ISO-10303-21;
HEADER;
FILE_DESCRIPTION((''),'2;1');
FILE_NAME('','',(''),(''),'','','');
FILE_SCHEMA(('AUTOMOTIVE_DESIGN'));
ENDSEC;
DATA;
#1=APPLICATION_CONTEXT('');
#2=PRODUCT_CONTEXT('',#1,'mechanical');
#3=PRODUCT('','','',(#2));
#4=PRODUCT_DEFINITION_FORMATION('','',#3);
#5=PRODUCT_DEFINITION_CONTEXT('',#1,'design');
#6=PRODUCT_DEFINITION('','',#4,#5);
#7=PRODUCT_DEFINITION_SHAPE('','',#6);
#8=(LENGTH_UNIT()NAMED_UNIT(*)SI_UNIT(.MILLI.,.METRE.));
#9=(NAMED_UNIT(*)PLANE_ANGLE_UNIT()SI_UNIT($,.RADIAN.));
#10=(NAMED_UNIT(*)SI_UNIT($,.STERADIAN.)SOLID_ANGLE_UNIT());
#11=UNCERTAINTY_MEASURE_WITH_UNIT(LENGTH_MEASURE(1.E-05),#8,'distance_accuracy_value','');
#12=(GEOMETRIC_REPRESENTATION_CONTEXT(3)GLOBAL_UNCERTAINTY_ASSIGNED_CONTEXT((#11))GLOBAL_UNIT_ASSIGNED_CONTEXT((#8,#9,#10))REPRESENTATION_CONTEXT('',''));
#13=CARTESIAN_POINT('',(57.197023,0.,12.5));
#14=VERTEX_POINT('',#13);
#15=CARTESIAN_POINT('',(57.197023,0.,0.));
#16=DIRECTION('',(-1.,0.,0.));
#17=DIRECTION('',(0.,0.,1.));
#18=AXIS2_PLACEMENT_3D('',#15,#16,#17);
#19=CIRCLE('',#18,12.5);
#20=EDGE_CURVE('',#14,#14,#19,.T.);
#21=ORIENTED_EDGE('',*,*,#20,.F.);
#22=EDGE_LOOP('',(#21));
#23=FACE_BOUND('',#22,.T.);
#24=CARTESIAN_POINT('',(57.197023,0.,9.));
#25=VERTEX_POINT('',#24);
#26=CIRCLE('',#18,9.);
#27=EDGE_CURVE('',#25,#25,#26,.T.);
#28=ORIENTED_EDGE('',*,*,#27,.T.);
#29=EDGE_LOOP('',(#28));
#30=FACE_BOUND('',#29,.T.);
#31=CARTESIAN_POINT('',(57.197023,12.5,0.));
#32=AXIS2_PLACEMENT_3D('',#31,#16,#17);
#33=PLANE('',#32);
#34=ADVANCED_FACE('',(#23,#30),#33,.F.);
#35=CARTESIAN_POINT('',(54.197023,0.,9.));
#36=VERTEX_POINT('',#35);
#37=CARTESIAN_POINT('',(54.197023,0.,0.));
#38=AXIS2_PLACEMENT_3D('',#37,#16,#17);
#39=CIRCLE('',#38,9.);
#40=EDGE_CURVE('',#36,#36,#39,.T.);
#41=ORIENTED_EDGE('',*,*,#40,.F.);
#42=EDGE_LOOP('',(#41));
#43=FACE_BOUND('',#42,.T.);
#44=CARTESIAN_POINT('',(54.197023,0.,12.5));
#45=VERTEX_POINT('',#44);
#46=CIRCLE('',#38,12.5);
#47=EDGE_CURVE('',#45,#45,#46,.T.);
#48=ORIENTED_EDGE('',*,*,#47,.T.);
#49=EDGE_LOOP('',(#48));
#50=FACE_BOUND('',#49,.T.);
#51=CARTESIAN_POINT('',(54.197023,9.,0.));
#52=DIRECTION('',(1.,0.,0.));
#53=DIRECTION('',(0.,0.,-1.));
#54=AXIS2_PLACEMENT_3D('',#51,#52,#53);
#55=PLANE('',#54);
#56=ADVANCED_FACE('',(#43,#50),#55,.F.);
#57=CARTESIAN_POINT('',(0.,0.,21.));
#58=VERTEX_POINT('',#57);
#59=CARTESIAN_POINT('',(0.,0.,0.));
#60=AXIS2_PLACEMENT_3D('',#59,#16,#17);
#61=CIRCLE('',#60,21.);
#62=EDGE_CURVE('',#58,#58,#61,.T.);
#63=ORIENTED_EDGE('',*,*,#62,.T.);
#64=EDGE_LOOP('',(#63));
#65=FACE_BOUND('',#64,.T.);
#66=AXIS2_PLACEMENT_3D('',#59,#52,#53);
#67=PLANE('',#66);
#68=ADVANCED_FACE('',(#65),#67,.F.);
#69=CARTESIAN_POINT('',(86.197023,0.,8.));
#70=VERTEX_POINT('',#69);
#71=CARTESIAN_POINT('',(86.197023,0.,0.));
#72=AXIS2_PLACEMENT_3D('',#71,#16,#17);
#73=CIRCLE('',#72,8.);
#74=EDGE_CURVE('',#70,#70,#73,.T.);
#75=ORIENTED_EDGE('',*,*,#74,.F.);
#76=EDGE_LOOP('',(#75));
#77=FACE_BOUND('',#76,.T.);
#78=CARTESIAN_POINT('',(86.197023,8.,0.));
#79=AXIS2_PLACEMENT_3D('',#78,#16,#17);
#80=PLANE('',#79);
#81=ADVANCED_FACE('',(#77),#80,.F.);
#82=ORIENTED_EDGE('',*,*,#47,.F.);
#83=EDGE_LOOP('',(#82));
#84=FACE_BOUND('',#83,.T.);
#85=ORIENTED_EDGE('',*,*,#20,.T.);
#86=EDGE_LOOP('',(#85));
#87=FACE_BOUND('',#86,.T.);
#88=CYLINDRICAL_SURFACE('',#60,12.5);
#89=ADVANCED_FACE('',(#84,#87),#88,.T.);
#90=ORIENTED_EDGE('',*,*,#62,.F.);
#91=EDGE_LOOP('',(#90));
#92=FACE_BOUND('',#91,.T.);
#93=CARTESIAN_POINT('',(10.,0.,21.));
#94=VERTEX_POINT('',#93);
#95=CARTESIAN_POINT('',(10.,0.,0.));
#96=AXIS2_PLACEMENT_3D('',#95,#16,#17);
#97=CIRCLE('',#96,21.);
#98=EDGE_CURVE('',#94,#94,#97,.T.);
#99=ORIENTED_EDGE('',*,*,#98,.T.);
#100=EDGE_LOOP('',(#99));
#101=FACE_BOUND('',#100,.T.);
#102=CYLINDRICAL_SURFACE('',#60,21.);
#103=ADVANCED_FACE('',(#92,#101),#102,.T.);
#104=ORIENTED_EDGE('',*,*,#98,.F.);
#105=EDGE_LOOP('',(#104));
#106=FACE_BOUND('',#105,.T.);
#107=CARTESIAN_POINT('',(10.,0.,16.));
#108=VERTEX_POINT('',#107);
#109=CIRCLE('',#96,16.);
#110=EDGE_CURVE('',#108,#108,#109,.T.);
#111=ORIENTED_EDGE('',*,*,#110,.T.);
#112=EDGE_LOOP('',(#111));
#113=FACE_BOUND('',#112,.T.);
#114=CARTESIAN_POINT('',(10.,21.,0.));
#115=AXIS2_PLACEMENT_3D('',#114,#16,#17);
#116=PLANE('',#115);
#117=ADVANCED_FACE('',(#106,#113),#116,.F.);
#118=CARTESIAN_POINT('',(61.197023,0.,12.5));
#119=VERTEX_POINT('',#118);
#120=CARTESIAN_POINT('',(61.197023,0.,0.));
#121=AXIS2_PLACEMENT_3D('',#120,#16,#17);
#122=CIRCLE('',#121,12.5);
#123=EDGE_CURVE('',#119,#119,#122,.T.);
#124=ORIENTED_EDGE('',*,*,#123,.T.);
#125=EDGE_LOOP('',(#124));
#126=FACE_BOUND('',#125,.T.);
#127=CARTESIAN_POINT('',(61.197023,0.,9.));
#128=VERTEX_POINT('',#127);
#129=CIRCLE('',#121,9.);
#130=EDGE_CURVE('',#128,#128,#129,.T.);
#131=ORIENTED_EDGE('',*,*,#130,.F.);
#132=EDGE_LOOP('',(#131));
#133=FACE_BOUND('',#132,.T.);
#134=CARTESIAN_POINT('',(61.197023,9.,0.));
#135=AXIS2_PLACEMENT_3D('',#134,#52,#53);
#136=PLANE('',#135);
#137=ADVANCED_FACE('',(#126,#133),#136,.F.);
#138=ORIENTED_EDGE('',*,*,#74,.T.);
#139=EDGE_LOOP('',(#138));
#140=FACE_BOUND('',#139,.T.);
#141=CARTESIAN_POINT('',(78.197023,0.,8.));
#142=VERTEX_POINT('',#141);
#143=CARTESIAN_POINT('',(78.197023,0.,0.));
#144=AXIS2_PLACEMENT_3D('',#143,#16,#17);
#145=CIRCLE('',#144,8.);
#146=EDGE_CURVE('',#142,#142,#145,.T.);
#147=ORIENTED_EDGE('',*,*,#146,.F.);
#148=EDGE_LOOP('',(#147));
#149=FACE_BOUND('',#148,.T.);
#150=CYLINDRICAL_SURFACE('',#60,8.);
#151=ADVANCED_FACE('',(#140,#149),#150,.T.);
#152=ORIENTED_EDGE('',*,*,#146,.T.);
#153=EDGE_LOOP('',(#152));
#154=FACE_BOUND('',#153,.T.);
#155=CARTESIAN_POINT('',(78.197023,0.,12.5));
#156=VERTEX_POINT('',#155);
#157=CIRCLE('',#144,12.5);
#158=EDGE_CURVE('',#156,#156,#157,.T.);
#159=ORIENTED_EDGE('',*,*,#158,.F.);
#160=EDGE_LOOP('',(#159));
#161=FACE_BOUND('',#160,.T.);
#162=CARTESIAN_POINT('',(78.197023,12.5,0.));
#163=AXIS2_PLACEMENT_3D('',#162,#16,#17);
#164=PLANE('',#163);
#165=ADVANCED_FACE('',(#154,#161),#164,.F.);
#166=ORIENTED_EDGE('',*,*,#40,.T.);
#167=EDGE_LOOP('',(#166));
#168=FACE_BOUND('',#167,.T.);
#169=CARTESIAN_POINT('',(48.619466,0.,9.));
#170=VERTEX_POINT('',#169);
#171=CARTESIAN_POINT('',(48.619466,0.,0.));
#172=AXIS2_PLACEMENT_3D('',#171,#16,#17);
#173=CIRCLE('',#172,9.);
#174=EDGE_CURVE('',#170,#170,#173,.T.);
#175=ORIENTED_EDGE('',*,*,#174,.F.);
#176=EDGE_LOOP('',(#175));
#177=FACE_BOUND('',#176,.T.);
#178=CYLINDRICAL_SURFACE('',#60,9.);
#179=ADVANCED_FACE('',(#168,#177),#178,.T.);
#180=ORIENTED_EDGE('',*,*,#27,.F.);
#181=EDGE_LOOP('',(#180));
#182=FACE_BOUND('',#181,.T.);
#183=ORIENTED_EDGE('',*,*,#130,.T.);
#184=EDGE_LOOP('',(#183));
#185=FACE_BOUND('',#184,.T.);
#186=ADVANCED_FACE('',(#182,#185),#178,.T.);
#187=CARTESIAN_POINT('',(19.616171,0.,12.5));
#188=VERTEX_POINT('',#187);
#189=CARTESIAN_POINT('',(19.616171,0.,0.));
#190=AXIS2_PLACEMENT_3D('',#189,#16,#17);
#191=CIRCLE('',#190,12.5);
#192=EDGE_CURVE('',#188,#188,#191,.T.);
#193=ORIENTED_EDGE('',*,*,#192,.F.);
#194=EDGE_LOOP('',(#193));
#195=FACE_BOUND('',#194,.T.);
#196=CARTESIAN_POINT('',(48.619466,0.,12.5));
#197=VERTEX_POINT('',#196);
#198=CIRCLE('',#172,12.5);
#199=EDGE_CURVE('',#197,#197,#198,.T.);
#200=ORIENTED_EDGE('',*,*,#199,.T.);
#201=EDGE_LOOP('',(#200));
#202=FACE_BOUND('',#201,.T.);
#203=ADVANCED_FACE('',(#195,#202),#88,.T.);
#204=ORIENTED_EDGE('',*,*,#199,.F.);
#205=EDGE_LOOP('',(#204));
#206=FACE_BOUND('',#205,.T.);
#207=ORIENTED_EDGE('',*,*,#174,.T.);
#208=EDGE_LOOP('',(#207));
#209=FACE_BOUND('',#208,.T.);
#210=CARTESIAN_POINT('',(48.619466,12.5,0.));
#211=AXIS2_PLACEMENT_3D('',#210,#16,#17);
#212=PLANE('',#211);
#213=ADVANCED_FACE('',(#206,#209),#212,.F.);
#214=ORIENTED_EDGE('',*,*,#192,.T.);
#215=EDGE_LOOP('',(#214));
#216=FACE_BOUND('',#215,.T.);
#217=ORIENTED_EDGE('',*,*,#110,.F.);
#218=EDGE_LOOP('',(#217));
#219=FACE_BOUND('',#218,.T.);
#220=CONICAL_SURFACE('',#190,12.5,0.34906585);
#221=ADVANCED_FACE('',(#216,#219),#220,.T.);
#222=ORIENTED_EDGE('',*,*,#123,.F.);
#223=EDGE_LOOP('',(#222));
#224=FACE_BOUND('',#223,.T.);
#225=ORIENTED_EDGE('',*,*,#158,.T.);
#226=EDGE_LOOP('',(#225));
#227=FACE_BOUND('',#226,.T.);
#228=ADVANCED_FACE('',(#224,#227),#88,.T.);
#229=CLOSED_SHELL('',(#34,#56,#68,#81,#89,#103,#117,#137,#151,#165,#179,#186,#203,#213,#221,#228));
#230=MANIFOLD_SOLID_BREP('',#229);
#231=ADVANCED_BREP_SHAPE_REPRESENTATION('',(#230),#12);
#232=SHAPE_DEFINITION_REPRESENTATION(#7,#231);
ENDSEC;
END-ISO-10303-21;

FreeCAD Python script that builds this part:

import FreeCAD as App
import Part
import Sketcher
from FreeCAD import Vector
Q = App.Units.Quantity

doc = App.newDocument("Part")
body = doc.addObject("PartDesign::Body", "Body")

sketch1 = body.newObject("Sketcher::SketchObject", "Sketch")
sketch1.AttachmentSupport = (doc.getObject("XY_Plane"), [""])
sketch1.MapMode = "FlatFace"
sketch1.addGeometry([
    Part.LineSegment(Vector(0, 21, 0), Vector(0, 0, 0)),
    Part.LineSegment(Vector(0, 0, 0), Vector(86.2, 0, 0)),
    Part.LineSegment(Vector(86.2, 0, 0), Vector(86.2, 8, 0)),
    Part.LineSegment(Vector(86.2, 8, 0), Vector(78.2, 8, 0)),
    Part.LineSegment(Vector(78.2, 8, 0), Vector(78.2, 12.5, 0)),
    Part.LineSegment(Vector(78.2, 12.5, 0), Vector(61.2, 12.5, 0)),
    Part.LineSegment(Vector(61.2, 12.5, 0), Vector(61.2, 9, 0)),
    Part.LineSegment(Vector(61.2, 9, 0), Vector(57.2, 9, 0)),
    Part.LineSegment(Vector(57.2, 9, 0), Vector(57.2, 12.5, 0)),
    Part.LineSegment(Vector(57.2, 12.5, 0), Vector(54.2, 12.5, 0)),
    Part.LineSegment(Vector(54.2, 12.5, 0), Vector(54.2, 9, 0)),
    Part.LineSegment(Vector(54.2, 9, 0), Vector(48.6, 9, 0)),
    Part.LineSegment(Vector(48.6, 9, 0), Vector(48.6, 12.5, 0)),
    Part.LineSegment(Vector(48.6, 12.5, 0), Vector(19.6, 12.5, 0)),
    Part.LineSegment(Vector(19.6, 12.5, 0), Vector(10, 16, 0)),
    Part.LineSegment(Vector(10, 16, 0), Vector(10, 21, 0)),
    Part.LineSegment(Vector(10, 21, 0), Vector(0, 21, 0)),
], False)
sketch1.addConstraint([
    Sketcher.Constraint("Coincident", 0, 2, 1, 1),
    Sketcher.Constraint("Coincident", 1, 2, 2, 1),
    Sketcher.Constraint("Coincident", 2, 2, 3, 1),
    Sketcher.Constraint("Coincident", 3, 2, 4, 1),
    Sketcher.Constraint("Coincident", 4, 2, 5, 1),
    Sketcher.Constraint("Coincident", 5, 2, 6, 1),
    Sketcher.Constraint("Coincident", 6, 2, 7, 1),
    Sketcher.Constraint("Coincident", 7, 2, 8, 1),
    Sketcher.Constraint("Coincident", 8, 2, 9, 1),
    Sketcher.Constraint("Coincident", 9, 2, 10, 1),
    Sketcher.Constraint("Coincident", 10, 2, 11, 1),
    Sketcher.Constraint("Coincident", 11, 2, 12, 1),
    Sketcher.Constraint("Coincident", 12, 2, 13, 1),
    Sketcher.Constraint("Coincident", 13, 2, 14, 1),
    Sketcher.Constraint("Coincident", 14, 2, 15, 1),
    Sketcher.Constraint("Coincident", 15, 2, 16, 1),
    Sketcher.Constraint("Coincident", 16, 2, 0, 1),
    Sketcher.Constraint("Vertical", 0),
    Sketcher.Constraint("Horizontal", 1),
    Sketcher.Constraint("Vertical", 2),
    Sketcher.Constraint("Horizontal", 3),
    Sketcher.Constraint("Vertical", 4),
    Sketcher.Constraint("Horizontal", 5),
    Sketcher.Constraint("Vertical", 6),
    Sketcher.Constraint("Horizontal", 7),
    Sketcher.Constraint("Vertical", 8),
    Sketcher.Constraint("Horizontal", 9),
    Sketcher.Constraint("Vertical", 10),
    Sketcher.Constraint("Horizontal", 11),
    Sketcher.Constraint("Vertical", 12),
    Sketcher.Constraint("Horizontal", 13),
    Sketcher.Constraint("Vertical", 15),
    Sketcher.Constraint("Horizontal", 16),
    Sketcher.Constraint("Coincident", 0, 2, -1, 1),
    Sketcher.Constraint("Horizontal", 5, 2, 8, 2),
    Sketcher.Constraint("Horizontal", 7, 2, 10, 2),
    Sketcher.Constraint("Horizontal", 9, 2, 12, 2),
    Sketcher.Constraint("Equal", 3, 2),
    Sketcher.Constraint("DistanceX", 3, 2, 3, 1, 8.0),
    Sketcher.Constraint("DistanceX", 5, 2, 5, 1, 17.0),
    Sketcher.Constraint("DistanceX", 7, 2, 7, 1, 4.0),
    Sketcher.Constraint("DistanceX", 9, 2, 9, 1, 3.0),
    Sketcher.Constraint("DistanceX", 16, 2, 16, 1, 10.0),
    Sketcher.Constraint("DistanceY", 0, 2, 0, 1, 21.0),
    Sketcher.Constraint("DistanceY", 15, 1, 15, 2, 5.0),
    Sketcher.Constraint("Angle", 14, Q("160 deg")),
    Sketcher.Constraint("DistanceY", 4, 1, 4, 2, 4.5),
    Sketcher.Constraint("DistanceY", 6, 2, 6, 1, 3.5),
    Sketcher.Constraint("DistanceX", 1, 1, 1, 2, 86.197023),
    Sketcher.Constraint("DistanceX", 11, 2, 11, 1, 5.577557),
])
revolution = body.newObject("PartDesign::Revolution", "Revolution")
revolution.Profile = sketch1
revolution.ReferenceAxis = (sketch1, ["H_Axis"])
revolution.Angle = 360

doc.recompute()
